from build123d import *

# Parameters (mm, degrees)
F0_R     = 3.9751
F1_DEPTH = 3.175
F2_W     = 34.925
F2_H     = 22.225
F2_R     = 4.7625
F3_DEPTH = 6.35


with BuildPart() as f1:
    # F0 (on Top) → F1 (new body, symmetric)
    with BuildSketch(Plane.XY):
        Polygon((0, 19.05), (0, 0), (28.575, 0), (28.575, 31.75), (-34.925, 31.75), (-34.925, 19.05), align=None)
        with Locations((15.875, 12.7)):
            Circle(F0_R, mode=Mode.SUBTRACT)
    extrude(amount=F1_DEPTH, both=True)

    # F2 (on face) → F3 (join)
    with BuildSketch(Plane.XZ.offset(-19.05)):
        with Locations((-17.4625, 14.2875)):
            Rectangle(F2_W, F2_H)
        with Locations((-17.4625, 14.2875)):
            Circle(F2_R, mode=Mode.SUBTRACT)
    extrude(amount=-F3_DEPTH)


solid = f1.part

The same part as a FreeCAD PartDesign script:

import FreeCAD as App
import Part
import Sketcher
from FreeCAD import Vector
Q = App.Units.Quantity


def add_polygon(sketch, points):
    """Adds a closed chain of lines whose ends are joined by coincident constraints."""
    first, n = sketch.GeometryCount, len(points)
    for a, b in zip(points, points[1:] + points[:1]):
        sketch.addGeometry(Part.LineSegment(App.Vector(*a, 0), App.Vector(*b, 0)), False)
    for i in range(n):
        sketch.addConstraint(Sketcher.Constraint("Coincident", first + i, 2, first + (i + 1) % n, 1))

doc = App.newDocument("Part")
params = doc.addObject("Spreadsheet::Sheet", "Params")
for row, (alias, value) in enumerate([
    ("sketch1_diameter", "0.313 in"),
    ("sketch1_width", "2.5 in"),
    ("sketch1_height", "0.5 in"),
    ("sketch1_height2", "0.75 in"),
    ("sketch1_width2", "1.125 in"),
    ("pad1_length", "0.25 in"),
    ("sketch2_diameter", "0.375 in"),
    ("sketch2_width", "1.375 in"),
    ("sketch2_height", "0.875 in"),
    ("pad2_length", "0.25 in"),
], start=1):
    params.set(f"A{row}", alias)
    params.set(f"B{row}", "=" + value)
    params.setAlias(f"B{row}", alias)

body = doc.addObject("PartDesign::Body", "Body")

# Sketch on XY plane
sketch1 = doc.addObject("Sketcher::SketchObject", "Sketch")
body.addObject(sketch1)
sketch1.AttachmentSupport = (doc.XY_Plane, [""])
sketch1.MapMode = "FlatFace"
add_polygon(sketch1, [(0, 19.05), (0, 0), (28.575, 0), (28.575, 31.75), (-34.925, 31.75), (-34.925, 19.05)])  # lines 0-5
sketch1.addGeometry(Part.Circle(Vector(15.875, 12.7, 0), Vector(0, 0, 1), 3.9751), False)  # 6
sketch1.addConstraint(Sketcher.Constraint("Vertical", 0))
sketch1.addConstraint(Sketcher.Constraint("Horizontal", 1))
sketch1.addConstraint(Sketcher.Constraint("Vertical", 2))
sketch1.addConstraint(Sketcher.Constraint("Horizontal", 3))
sketch1.addConstraint(Sketcher.Constraint("Vertical", 4))
sketch1.addConstraint(Sketcher.Constraint("Horizontal", 5))
sketch1.addConstraint(Sketcher.Constraint("Coincident", 0, 2, -1, 1))
sketch1.addConstraint(Sketcher.Constraint("Diameter", 6, Q("0.313 in")))
sketch1.addConstraint(Sketcher.Constraint("DistanceX", 3, 2, 3, 1, Q("2.5 in")))
sketch1.addConstraint(Sketcher.Constraint("DistanceY", 4, 2, 4, 1, Q("0.5 in")))
sketch1.addConstraint(Sketcher.Constraint("DistanceX", 3, 2, 6, 3, Q("2 in")))
sketch1.addConstraint(Sketcher.Constraint("DistanceY", 0, 2, 0, 1, Q("0.75 in")))
sketch1.addConstraint(Sketcher.Constraint("DistanceY", -1, 1, 6, 3, Q("0.5 in")))
sketch1.addConstraint(Sketcher.Constraint("DistanceX", 1, 1, 1, 2, Q("1.125 in")))
sketch1.setExpression("Constraints[13]", "Params.sketch1_diameter")
sketch1.setExpression("Constraints[14]", "Params.sketch1_width")
sketch1.setExpression("Constraints[15]", "Params.sketch1_height")
sketch1.setExpression("Constraints[17]", "Params.sketch1_height2")
sketch1.setExpression("Constraints[19]", "Params.sketch1_width2")
pad1 = doc.addObject("PartDesign::Pad", "Pad")
body.addObject(pad1)
pad1.Profile = sketch1
pad1.setExpression("Length", "Params.pad1_length")
pad1.Midplane = True

# Sketch on XZ plane
sketch2 = doc.addObject("Sketcher::SketchObject", "Sketch001")
body.addObject(sketch2)
sketch2.AttachmentSupport = (doc.XZ_Plane, [""])
sketch2.MapMode = "FlatFace"
sketch2.AttachmentOffset = App.Placement(Vector(0, 0, -0.75 * 25.4), App.Rotation())
add_polygon(sketch2, [(-34.925, 25.4), (-34.925, 3.175), (0, 3.175), (0, 25.4)])  # lines 0-3
sketch2.addGeometry(Part.Circle(Vector(-17.4625, 14.2875, 0), Vector(0, 0, 1), 4.7625), False)  # 4
sketch2.addConstraint(Sketcher.Constraint("Vertical", 0))
sketch2.addConstraint(Sketcher.Constraint("Horizontal", 1))
sketch2.addConstraint(Sketcher.Constraint("Vertical", 2))
sketch2.addConstraint(Sketcher.Constraint("Horizontal", 3))
sketch2.addConstraint(Sketcher.Constraint("PointOnObject", 1, 2, -2))
sketch2.addConstraint(Sketcher.Constraint("Diameter", 4, Q("0.375 in")))
sketch2.addConstraint(Sketcher.Constraint("DistanceY", -1, 1, 2, 2, Q("1 in")))
sketch2.addConstraint(Sketcher.Constraint("DistanceX", 1, 1, 1, 2, Q("1.375 in")))
sketch2.addConstraint(Sketcher.Constraint("DistanceY", 0, 2, 0, 1, Q("0.875 in")))
sketch2.addConstraint(Sketcher.Constraint("DistanceX", 4, 3, -1, 1, Q("0.6875 in")))
sketch2.addConstraint(Sketcher.Constraint("DistanceY", -1, 1, 4, 3, Q("0.5625 in")))
sketch2.setExpression("Constraints[9]", "Params.sketch2_diameter")
sketch2.setExpression("Constraints[11]", "Params.sketch2_width")
sketch2.setExpression("Constraints[12]", "Params.sketch2_height")
pad2 = doc.addObject("PartDesign::Pad", "Pad001")
body.addObject(pad2)
pad2.Profile = sketch2
pad2.setExpression("Length", "Params.pad2_length")
pad2.Reversed = True

doc.recompute()
